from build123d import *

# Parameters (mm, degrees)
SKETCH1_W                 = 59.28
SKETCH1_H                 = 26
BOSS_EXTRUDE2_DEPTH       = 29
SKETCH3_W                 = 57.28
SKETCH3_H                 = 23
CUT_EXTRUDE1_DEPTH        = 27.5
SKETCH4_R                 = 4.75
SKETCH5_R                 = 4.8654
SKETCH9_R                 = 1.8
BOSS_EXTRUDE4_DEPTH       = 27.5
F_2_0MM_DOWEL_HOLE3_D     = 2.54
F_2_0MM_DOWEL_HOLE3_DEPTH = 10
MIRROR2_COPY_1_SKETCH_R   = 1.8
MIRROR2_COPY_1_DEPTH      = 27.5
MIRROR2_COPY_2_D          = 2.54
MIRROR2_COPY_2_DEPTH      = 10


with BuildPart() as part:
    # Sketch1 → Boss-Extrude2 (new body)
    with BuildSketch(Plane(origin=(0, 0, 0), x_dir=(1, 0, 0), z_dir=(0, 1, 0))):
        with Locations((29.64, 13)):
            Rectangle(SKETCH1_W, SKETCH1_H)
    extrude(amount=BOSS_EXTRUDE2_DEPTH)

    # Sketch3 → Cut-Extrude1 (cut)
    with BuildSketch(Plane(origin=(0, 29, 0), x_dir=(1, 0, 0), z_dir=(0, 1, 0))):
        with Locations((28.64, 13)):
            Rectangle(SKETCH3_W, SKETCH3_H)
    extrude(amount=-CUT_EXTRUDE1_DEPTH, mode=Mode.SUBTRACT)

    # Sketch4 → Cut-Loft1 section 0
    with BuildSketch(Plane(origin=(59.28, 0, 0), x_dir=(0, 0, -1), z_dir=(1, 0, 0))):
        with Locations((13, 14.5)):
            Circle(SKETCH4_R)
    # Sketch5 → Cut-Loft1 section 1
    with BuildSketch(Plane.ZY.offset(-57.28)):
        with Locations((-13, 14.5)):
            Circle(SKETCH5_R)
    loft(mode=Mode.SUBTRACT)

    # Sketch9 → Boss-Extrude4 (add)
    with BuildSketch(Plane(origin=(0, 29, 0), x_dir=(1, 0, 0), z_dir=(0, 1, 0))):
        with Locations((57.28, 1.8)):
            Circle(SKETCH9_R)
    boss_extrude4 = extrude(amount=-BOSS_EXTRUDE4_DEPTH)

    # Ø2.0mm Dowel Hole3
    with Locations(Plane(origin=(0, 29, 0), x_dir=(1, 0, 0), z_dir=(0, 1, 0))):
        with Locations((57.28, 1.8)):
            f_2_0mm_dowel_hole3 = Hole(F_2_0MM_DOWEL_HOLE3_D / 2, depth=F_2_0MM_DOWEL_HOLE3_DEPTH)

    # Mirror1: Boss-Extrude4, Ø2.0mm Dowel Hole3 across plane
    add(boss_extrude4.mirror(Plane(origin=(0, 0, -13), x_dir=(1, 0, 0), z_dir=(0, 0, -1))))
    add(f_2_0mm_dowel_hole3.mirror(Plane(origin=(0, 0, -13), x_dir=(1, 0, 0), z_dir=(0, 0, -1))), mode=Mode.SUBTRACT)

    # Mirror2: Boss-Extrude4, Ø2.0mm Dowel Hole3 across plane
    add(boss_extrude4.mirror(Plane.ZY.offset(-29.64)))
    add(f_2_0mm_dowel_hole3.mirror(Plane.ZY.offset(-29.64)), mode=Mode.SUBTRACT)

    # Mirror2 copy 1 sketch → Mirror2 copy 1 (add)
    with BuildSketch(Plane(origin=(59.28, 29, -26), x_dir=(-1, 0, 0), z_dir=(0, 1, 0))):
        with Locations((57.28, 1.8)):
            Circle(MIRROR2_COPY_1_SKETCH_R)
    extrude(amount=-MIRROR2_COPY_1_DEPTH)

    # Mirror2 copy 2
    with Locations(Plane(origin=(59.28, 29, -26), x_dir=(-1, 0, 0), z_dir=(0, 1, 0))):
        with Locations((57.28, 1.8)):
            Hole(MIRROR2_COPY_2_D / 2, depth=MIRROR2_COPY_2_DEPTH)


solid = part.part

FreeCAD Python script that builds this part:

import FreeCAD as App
import Part
import Sketcher

V = App.Vector


def add_polygon(sketch, points):
    """Adds a closed chain of lines whose ends are joined by coincident constraints."""
    first, n = sketch.GeometryCount, len(points)
    for a, b in zip(points, points[1:] + points[:1]):
        sketch.addGeometry(Part.LineSegment(App.Vector(*a, 0), App.Vector(*b, 0)), False)
    for i in range(n):
        sketch.addConstraint(Sketcher.Constraint("Coincident", first + i, 2, first + (i + 1) % n, 1))

doc = App.newDocument("Part")
body = doc.addObject("PartDesign::Body", "Body")

# Sketch on XZ plane
sketch1 = body.newObject("Sketcher::SketchObject", "Sketch")
sketch1.AttachmentSupport = (doc.getObject("XZ_Plane"), [""])
sketch1.MapMode = "FlatFace"
add_polygon(sketch1, [(0, -26), (0, 0), (59.28, 0), (59.28, -26)])  # lines 0-3
sketch1.addConstraint([
    Sketcher.Constraint("Vertical", 0),
    Sketcher.Constraint("Horizontal", 1),
    Sketcher.Constraint("Vertical", 2),
    Sketcher.Constraint("Horizontal", 3),
    Sketcher.Constraint("Coincident", 0, 2, -1, 1),
    Sketcher.Constraint("DistanceY", 0, 1, 0, 2, 26.0),
    Sketcher.Constraint("DistanceX", 1, 1, 1, 2, 59.28),
])
pad1 = body.newObject("PartDesign::Pad", "Pad")
pad1.Profile = sketch1
pad1.Length = 29
pad1.Reversed = True

# Sketch on XZ plane
sketch2 = body.newObject("Sketcher::SketchObject", "Sketch001")
sketch2.AttachmentSupport = (doc.getObject("XZ_Plane"), [""])
sketch2.MapMode = "FlatFace"
sketch2.AttachmentOffset = App.Placement(V(0, 0, -29), App.Rotation())
add_polygon(sketch2, [(0, -24.5), (0, -1.5), (57.28, -1.5), (57.28, -24.5)])  # lines 0-3
sketch2.addConstraint([
    Sketcher.Constraint("Vertical", 0),
    Sketcher.Constraint("Horizontal", 1),
    Sketcher.Constraint("Vertical", 2),
    Sketcher.Constraint("Horizontal", 3),
    Sketcher.Constraint("PointOnObject", 0, 2, -2),
    Sketcher.Constraint("DistanceY", 0, 1, 0, 2, 23.0),
    Sketcher.Constraint("DistanceX", 1, 1, 1, 2, 57.28),
    Sketcher.Constraint("DistanceY", 0, 2, -1, 1, 1.5),
])
pocket1 = body.newObject("PartDesign::Pocket", "Pocket")
pocket1.Profile = sketch2
pocket1.Length = 27.5
pocket1.Reversed = True

# Sketch on YZ plane
sketch3 = body.newObject("Sketcher::SketchObject", "Sketch002")
sketch3.AttachmentSupport = (doc.getObject("YZ_Plane"), [""])
sketch3.MapMode = "FlatFace"
sketch3.AttachmentOffset = App.Placement(V(0, 0, 59.28), App.Rotation())
sketch3.addGeometry(Part.Circle(V(14.5, -13, 0), V(0, 0, 1), 4.75), False)
sketch3.addConstraint([
    Sketcher.Constraint("Diameter", 0, 9.5),
    Sketcher.Constraint("DistanceY", 0, 3, -1, 1, 13.0),
    Sketcher.Constraint("DistanceX", -1, 1, 0, 3, 14.5),
])

# Sketch on YZ plane
sketch4 = body.newObject("Sketcher::SketchObject", "Sketch003")
sketch4.AttachmentSupport = (doc.getObject("YZ_Plane"), [""])
sketch4.MapMode = "FlatFace"
sketch4.AttachmentOffset = App.Placement(V(0, 0, 57.28), App.Rotation())
sketch4.addGeometry(Part.Circle(V(14.5, -13, 0), V(0, 0, 1), 4.8654), False)
sketch4.addConstraint([
    Sketcher.Constraint("DistanceY", 0, 3, -1, 1, 13.0),
    Sketcher.Constraint("Diameter", 0, 9.7308),
    Sketcher.Constraint("DistanceX", -1, 1, 0, 3, 14.5),
])

subtractiveloft = body.newObject("PartDesign::SubtractiveLoft", "SubtractiveLoft")
subtractiveloft.Profile = sketch3
subtractiveloft.Sections = [sketch4]

# Sketch on XZ plane
sketch5 = body.newObject("Sketcher::SketchObject", "Sketch004")
sketch5.AttachmentSupport = (doc.getObject("XZ_Plane"), [""])
sketch5.MapMode = "FlatFace"
sketch5.AttachmentOffset = App.Placement(V(0, 0, -29), App.Rotation())
sketch5.addGeometry(Part.Circle(V(57.28, -1.8, 0), V(0, 0, 1), 1.8), False)
sketch5.addConstraint([
    Sketcher.Constraint("Diameter", 0, 3.6),
    Sketcher.Constraint("DistanceY", 0, 3, -1, 1, 1.8),
    Sketcher.Constraint("DistanceX", -1, 1, 0, 3, 57.28),
])
pad2 = body.newObject("PartDesign::Pad", "Pad001")
pad2.Profile = sketch5
pad2.Length = 27.5

# Sketch on XZ plane
sketch6 = body.newObject("Sketcher::SketchObject", "Sketch005")
sketch6.AttachmentSupport = (doc.getObject("XZ_Plane"), [""])
sketch6.MapMode = "FlatFace"
sketch6.AttachmentOffset = App.Placement(V(0, 0, -29), App.Rotation())
sketch6.addGeometry(Part.Circle(V(57.28, -1.8, 0), V(0, 0, 1), 1.27), False)
sketch6.addConstraint([
    Sketcher.Constraint("Diameter", 0, 2.54),
    Sketcher.Constraint("DistanceY", 0, 3, -1, 1, 1.8),
    Sketcher.Constraint("DistanceX", -1, 1, 0, 3, 57.28),
])
doc.recompute()
hole = body.newObject("PartDesign::Hole", "Hole")
hole.Profile = sketch6
hole.ThreadType = "None"
hole.Diameter = 2.54
hole.DepthType = "Dimension"
hole.Depth = 10
hole.DrillPoint = "Flat"
hole.Reversed = True
doc.recompute()

datumplane = body.newObject("PartDesign::Plane", "DatumPlane")
datumplane.AttachmentSupport = (doc.getObject("XY_Plane"), [""])
datumplane.MapMode = "FlatFace"
datumplane.AttachmentOffset = App.Placement(V(0, 0, -13), App.Rotation())
mirrored = body.newObject("PartDesign::Mirrored", "Mirrored")
mirrored.Originals = [pad2, hole]
mirrored.MirrorPlane = (datumplane, [""])
body.Tip = mirrored
doc.recompute()

datumplane2 = body.newObject("PartDesign::Plane", "DatumPlane001")
datumplane2.AttachmentSupport = (doc.getObject("YZ_Plane"), [""])
datumplane2.MapMode = "FlatFace"
datumplane2.AttachmentOffset = App.Placement(V(0, 0, 29.64), App.Rotation())
mirrored2 = body.newObject("PartDesign::Mirrored", "Mirrored001")
mirrored2.Originals = [pad2, hole]
mirrored2.MirrorPlane = (datumplane2, [""])
body.Tip = mirrored2

# Sketch on XZ plane
sketch7 = body.newObject("Sketcher::SketchObject", "Sketch006")
sketch7.AttachmentSupport = (doc.getObject("XZ_Plane"), [""])
sketch7.MapMode = "FlatFace"
sketch7.AttachmentOffset = App.Placement(V(0, 0, -29), App.Rotation())
sketch7.addGeometry(Part.Circle(V(2, -24.2, 0), V(0, 0, 1), 1.8), False)
sketch7.addConstraint([
    Sketcher.Constraint("Diameter", 0, 3.6),
    Sketcher.Constraint("DistanceX", -1, 1, 0, 3, 2.0),
    Sketcher.Constraint("DistanceY", 0, 3, -1, 1, 24.2),
])
pad3 = body.newObject("PartDesign::Pad", "Pad002")
pad3.Profile = sketch7
pad3.Length = 27.5

# Sketch on XZ plane
sketch8 = body.newObject("Sketcher::SketchObject", "Sketch007")
sketch8.AttachmentSupport = (doc.getObject("XZ_Plane"), [""])
sketch8.MapMode = "FlatFace"
sketch8.AttachmentOffset = App.Placement(V(0, 0, -29), App.Rotation())
sketch8.addGeometry(Part.Circle(V(2, -24.2, 0), V(0, 0, 1), 1.27), False)
sketch8.addConstraint([
    Sketcher.Constraint("Diameter", 0, 2.54),
    Sketcher.Constraint("DistanceX", -1, 1, 0, 3, 2.0),
    Sketcher.Constraint("DistanceY", 0, 3, -1, 1, 24.2),
])
doc.recompute()
hole2 = body.newObject("PartDesign::Hole", "Hole001")
hole2.Profile = sketch8
hole2.ThreadType = "None"
hole2.Diameter = 2.54
hole2.DepthType = "Dimension"
hole2.Depth = 10
hole2.DrillPoint = "Flat"
hole2.Reversed = True

doc.recompute()
